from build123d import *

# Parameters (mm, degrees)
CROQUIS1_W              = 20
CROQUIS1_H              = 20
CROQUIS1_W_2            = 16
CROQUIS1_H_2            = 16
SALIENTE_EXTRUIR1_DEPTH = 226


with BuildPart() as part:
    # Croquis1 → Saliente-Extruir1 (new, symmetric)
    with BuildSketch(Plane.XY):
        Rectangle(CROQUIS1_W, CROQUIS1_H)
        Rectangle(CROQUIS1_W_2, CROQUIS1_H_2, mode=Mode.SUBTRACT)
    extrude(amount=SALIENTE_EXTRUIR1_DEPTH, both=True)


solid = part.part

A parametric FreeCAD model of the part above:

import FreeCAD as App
import Part
import Sketcher
from FreeCAD import Vector
Q = App.Units.Quantity

doc = App.newDocument("Part")
body = doc.addObject("PartDesign::Body", "Body")

sketch1 = body.newObject("Sketcher::SketchObject", "Sketch")
sketch1.AttachmentSupport = (doc.getObject("XY_Plane"), [""])
sketch1.MapMode = "FlatFace"
sketch1.addGeometry([
    Part.LineSegment(Vector(-10, 10, 0), Vector(-10, -10, 0)),
    Part.LineSegment(Vector(-10, -10, 0), Vector(10, -10, 0)),
    Part.LineSegment(Vector(10, -10, 0), Vector(10, 10, 0)),
    Part.LineSegment(Vector(10, 10, 0), Vector(-10, 10, 0)),
    Part.LineSegment(Vector(8, -8, 0), Vector(-8, -8, 0)),
    Part.LineSegment(Vector(-8, -8, 0), Vector(-8, 8, 0)),
    Part.LineSegment(Vector(-8, 8, 0), Vector(8, 8, 0)),
    Part.LineSegment(Vector(8, 8, 0), Vector(8, -8, 0)),
], False)
sketch1.addConstraint([
    Sketcher.Constraint("Coincident", 0, 2, 1, 1),
    Sketcher.Constraint("Coincident", 1, 2, 2, 1),
    Sketcher.Constraint("Coincident", 2, 2, 3, 1),
    Sketcher.Constraint("Coincident", 3, 2, 0, 1),
    Sketcher.Constraint("Coincident", 4, 2, 5, 1),
    Sketcher.Constraint("Coincident", 5, 2, 6, 1),
    Sketcher.Constraint("Coincident", 6, 2, 7, 1),
    Sketcher.Constraint("Coincident", 7, 2, 4, 1),
    Sketcher.Constraint("Vertical", 0),
    Sketcher.Constraint("Horizontal", 1),
    Sketcher.Constraint("Vertical", 2),
    Sketcher.Constraint("Horizontal", 3),
    Sketcher.Constraint("Horizontal", 4),
    Sketcher.Constraint("Vertical", 5),
    Sketcher.Constraint("Horizontal", 6),
    Sketcher.Constraint("Vertical", 7),
    Sketcher.Constraint("Symmetric", 0, 2, 2, 2, -1, 1),
    Sketcher.Constraint("Symmetric", 4, 2, 6, 2, -1, 1),
    Sketcher.Constraint("Equal", 3, 0),
    Sketcher.Constraint("Equal", 6, 5),
    Sketcher.Constraint("DistanceX", 1, 1, 1, 2, Q("20 mm")),
    Sketcher.Constraint("DistanceX", 4, 2, 4, 1, Q("16 mm")),
])
pad1 = body.newObject("PartDesign::Pad", "Pad")
pad1.Profile = sketch1
pad1.Length = 452
pad1.Midplane = True

doc.recompute()
